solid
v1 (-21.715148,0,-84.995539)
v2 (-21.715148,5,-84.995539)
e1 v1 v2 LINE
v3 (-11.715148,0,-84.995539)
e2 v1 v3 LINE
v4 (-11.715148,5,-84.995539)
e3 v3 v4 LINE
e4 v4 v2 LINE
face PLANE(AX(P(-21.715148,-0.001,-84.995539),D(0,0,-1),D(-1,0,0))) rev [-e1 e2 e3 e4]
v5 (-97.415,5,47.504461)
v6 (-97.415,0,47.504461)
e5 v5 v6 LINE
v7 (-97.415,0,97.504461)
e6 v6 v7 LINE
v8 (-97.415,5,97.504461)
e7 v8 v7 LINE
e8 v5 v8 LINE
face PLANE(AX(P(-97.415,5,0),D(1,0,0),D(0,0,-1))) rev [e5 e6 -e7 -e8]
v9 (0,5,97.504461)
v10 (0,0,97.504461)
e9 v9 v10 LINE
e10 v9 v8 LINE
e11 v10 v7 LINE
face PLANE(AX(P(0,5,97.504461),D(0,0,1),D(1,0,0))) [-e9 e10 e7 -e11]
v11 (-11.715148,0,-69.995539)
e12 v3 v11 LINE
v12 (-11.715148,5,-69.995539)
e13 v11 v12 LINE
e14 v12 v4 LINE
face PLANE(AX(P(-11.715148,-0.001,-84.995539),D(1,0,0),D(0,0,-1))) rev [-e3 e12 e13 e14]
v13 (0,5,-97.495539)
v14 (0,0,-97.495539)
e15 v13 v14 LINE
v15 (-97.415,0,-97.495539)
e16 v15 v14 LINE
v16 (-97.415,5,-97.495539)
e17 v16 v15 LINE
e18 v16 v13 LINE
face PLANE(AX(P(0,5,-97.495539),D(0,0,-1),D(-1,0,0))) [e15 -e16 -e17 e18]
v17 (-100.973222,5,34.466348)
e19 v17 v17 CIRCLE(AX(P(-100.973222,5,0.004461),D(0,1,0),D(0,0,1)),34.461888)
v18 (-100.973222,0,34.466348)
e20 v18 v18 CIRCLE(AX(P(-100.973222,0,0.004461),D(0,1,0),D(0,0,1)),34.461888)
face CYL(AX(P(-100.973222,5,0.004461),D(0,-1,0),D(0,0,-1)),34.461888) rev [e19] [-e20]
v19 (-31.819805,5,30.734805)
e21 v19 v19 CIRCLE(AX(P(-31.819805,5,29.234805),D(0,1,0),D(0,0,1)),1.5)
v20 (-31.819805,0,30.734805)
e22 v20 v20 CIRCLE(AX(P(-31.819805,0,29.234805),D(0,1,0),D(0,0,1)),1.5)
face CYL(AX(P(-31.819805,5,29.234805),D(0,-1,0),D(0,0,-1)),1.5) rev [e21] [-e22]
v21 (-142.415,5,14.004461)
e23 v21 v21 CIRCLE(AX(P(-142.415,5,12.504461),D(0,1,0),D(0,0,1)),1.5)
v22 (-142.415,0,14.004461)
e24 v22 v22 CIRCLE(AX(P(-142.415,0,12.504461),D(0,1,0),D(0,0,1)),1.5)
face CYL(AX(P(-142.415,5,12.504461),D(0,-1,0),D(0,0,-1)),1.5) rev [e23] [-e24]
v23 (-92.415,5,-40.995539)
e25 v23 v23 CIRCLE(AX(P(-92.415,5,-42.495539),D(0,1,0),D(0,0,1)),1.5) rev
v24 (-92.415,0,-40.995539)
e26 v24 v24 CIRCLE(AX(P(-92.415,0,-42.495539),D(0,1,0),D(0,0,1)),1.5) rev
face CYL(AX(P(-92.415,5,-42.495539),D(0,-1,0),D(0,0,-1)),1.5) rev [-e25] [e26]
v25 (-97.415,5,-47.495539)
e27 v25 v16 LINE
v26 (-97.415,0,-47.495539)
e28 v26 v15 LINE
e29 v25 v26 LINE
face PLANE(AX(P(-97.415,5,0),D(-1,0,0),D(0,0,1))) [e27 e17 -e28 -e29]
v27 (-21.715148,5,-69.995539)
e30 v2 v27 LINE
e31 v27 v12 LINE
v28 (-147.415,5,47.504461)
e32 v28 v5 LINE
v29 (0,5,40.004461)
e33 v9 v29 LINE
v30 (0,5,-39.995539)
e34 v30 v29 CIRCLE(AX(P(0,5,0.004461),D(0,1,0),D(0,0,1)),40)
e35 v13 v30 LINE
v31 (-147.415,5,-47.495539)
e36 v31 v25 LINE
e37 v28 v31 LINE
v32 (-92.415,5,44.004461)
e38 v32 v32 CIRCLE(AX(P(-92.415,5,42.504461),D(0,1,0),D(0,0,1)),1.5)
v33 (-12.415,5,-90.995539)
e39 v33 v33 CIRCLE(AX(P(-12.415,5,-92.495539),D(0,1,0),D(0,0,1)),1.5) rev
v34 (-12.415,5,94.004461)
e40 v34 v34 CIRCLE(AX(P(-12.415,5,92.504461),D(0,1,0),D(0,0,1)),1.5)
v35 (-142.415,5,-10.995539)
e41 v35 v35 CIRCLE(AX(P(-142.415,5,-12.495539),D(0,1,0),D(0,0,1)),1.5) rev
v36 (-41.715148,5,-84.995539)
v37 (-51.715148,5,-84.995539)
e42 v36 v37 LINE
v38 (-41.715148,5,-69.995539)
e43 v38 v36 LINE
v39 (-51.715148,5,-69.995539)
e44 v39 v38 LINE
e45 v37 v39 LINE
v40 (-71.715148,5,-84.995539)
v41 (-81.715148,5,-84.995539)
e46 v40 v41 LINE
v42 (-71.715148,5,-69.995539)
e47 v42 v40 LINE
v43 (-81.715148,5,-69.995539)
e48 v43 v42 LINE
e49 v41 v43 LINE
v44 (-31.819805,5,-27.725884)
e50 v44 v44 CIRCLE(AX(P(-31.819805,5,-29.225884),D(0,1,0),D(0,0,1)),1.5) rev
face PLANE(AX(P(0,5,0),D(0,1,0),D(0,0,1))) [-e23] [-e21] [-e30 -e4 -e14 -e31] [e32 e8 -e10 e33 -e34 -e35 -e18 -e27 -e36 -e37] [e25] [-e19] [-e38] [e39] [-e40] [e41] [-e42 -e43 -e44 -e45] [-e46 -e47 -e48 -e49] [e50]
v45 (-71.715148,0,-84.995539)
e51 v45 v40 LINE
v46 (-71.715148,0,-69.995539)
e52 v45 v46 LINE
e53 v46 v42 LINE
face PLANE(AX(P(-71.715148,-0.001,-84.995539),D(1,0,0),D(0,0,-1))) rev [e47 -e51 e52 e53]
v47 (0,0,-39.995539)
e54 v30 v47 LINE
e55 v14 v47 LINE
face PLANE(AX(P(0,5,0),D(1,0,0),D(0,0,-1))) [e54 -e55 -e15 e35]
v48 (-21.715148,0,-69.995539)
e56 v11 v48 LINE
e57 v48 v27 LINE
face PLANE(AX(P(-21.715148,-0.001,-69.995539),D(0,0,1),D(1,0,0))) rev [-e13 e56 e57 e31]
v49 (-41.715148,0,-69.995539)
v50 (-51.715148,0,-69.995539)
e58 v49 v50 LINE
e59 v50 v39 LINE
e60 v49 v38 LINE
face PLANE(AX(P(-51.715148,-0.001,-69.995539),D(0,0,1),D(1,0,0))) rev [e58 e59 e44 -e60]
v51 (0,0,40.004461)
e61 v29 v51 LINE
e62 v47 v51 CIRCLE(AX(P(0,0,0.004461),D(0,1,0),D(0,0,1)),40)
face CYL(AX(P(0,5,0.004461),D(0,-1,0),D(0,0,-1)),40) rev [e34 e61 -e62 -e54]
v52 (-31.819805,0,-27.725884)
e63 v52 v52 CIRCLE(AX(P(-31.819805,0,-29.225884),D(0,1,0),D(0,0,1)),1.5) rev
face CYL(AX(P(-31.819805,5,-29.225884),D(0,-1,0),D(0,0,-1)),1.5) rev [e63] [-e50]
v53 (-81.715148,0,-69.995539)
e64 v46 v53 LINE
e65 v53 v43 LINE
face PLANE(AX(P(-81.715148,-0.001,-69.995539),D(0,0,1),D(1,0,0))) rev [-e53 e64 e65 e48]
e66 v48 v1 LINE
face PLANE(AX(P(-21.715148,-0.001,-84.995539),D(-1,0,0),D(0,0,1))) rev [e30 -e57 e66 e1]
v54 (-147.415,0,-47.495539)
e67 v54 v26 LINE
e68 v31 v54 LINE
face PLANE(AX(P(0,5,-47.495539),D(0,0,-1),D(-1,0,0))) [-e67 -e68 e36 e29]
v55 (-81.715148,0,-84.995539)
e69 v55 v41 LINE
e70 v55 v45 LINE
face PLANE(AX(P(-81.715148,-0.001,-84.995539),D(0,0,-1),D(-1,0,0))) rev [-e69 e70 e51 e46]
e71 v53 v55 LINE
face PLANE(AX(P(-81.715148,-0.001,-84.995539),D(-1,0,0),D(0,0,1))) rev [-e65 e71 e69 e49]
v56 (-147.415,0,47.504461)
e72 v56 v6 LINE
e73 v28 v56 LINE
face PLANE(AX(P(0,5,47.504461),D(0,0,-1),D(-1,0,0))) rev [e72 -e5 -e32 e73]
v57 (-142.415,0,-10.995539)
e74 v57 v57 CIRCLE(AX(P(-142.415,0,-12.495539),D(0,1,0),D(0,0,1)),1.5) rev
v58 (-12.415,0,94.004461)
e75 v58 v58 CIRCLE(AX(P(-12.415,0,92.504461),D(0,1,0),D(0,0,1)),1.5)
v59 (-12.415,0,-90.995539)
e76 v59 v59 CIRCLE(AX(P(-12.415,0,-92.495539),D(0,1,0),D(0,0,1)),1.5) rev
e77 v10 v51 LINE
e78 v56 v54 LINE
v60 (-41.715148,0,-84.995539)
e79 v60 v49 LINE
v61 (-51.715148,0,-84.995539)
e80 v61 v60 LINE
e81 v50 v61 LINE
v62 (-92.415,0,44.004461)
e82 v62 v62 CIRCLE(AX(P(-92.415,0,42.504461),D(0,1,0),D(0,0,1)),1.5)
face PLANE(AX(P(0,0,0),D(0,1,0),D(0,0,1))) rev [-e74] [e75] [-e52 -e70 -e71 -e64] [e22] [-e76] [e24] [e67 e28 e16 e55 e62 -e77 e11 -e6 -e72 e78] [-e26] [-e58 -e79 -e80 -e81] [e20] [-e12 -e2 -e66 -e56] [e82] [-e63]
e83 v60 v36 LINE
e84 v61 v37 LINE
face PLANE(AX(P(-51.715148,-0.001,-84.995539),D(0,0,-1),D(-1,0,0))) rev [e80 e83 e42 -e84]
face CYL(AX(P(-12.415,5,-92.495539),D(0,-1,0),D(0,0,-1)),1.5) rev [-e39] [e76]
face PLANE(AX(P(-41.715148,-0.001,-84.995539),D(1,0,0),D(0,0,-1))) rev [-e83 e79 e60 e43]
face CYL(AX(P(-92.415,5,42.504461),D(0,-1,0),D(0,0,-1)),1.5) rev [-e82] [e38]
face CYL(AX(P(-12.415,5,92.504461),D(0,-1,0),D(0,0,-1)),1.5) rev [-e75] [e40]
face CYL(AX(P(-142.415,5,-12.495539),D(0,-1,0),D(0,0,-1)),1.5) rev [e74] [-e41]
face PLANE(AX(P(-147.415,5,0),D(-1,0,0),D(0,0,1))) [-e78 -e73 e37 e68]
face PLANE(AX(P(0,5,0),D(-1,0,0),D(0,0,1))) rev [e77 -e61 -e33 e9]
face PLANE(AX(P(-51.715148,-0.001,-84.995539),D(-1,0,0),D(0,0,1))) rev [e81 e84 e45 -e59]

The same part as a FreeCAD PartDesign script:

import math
import FreeCAD as App
import Part
import Sketcher
from FreeCAD import Vector
Q = App.Units.Quantity

doc = App.newDocument("Part")
body = doc.addObject("PartDesign::Body", "Body")

sketch1 = body.newObject("Sketcher::SketchObject", "Sketch")
sketch1.AttachmentSupport = (doc.getObject("XZ_Plane"), [""])
sketch1.MapMode = "FlatFace"
sketch1.addGeometry([
    Part.LineSegment(Vector(-97.4, 97.5, 0), Vector(0, 97.5, 0)),
    Part.LineSegment(Vector(0, 97.5, 0), Vector(0, 40, 0)),
    Part.ArcOfCircle(Part.Circle(Vector(0, 0, 0), Vector(0, 0, 1), 40), math.radians(90), math.radians(270)),
    Part.LineSegment(Vector(0, -40, 0), Vector(0, -97.5, 0)),
    Part.LineSegment(Vector(0, -97.5, 0), Vector(-97.4, -97.5, 0)),
    Part.LineSegment(Vector(-97.4, -97.5, 0), Vector(-97.4, -47.5, 0)),
    Part.LineSegment(Vector(-97.4, -47.5, 0), Vector(-147.4, -47.5, 0)),
    Part.LineSegment(Vector(-147.4, -47.5, 0), Vector(-147.4, 47.5, 0)),
    Part.LineSegment(Vector(-147.4, 47.5, 0), Vector(-97.4, 47.5, 0)),
    Part.LineSegment(Vector(-97.4, 47.5, 0), Vector(-97.4, 97.5, 0)),
    Part.Circle(Vector(-142.4, 12.5, 0), Vector(0, 0, 1), 1.5),
    Part.Circle(Vector(-92.4, 42.5, 0), Vector(0, 0, 1), 1.5),
    Part.Circle(Vector(-12.4, 92.5, 0), Vector(0, 0, 1), 1.5),
    Part.Circle(Vector(-31.8, 29.2, 0), Vector(0, 0, 1), 1.5),
    Part.Circle(Vector(-142.4, -12.5, 0), Vector(0, 0, 1), 1.5),
    Part.Circle(Vector(-101, 0, 0), Vector(0, 0, 1), 34.5),
    Part.Circle(Vector(-92.4, -42.5, 0), Vector(0, 0, 1), 1.5),
    Part.Circle(Vector(-31.8, -29.2, 0), Vector(0, 0, 1), 1.5),
    Part.Circle(Vector(-12.4, -92.5, 0), Vector(0, 0, 1), 1.5),
], False)
sketch1.addConstraint([
    Sketcher.Constraint("Coincident", 0, 2, 1, 1),
    Sketcher.Constraint("Coincident", 1, 2, 2, 1),
    Sketcher.Constraint("Coincident", 2, 2, 3, 1),
    Sketcher.Constraint("Coincident", 3, 2, 4, 1),
    Sketcher.Constraint("Coincident", 4, 2, 5, 1),
    Sketcher.Constraint("Coincident", 5, 2, 6, 1),
    Sketcher.Constraint("Coincident", 6, 2, 7, 1),
    Sketcher.Constraint("Coincident", 7, 2, 8, 1),
    Sketcher.Constraint("Coincident", 8, 2, 9, 1),
    Sketcher.Constraint("Coincident", 9, 2, 0, 1),
    Sketcher.Constraint("Horizontal", 0),
    Sketcher.Constraint("Vertical", 1),
    Sketcher.Constraint("Vertical", 3),
    Sketcher.Constraint("Horizontal", 4),
    Sketcher.Constraint("Vertical", 5),
    Sketcher.Constraint("Horizontal", 6),
    Sketcher.Constraint("Vertical", 7),
    Sketcher.Constraint("Horizontal", 8),
    Sketcher.Constraint("Vertical", 9),
    Sketcher.Constraint("Equal", 10, 11),
    Sketcher.Constraint("Equal", 11, 12),
    Sketcher.Constraint("Equal", 12, 13),
    Sketcher.Constraint("Equal", 13, 14),
    Sketcher.Constraint("Equal", 14, 16),
    Sketcher.Constraint("Equal", 16, 17),
    Sketcher.Constraint("Equal", 17, 18),
    Sketcher.Constraint("PointOnObject", 2, 3, -2),
    Sketcher.Constraint("PointOnObject", 0, 2, -2),
    Sketcher.Constraint("PointOnObject", 2, 2, -2),
    Sketcher.Constraint("Horizontal", 2, 3, 15, 3),
    Sketcher.Constraint("Vertical", 10, 3, 14, 3),
    Sketcher.Constraint("Vertical", 11, 3, 16, 3),
    Sketcher.Constraint("Vertical", 13, 3, 17, 3),
    Sketcher.Constraint("Vertical", 12, 3, 18, 3),
    Sketcher.Constraint("Vertical", 5, 2, 8, 2),
    Sketcher.Constraint("Equal", 1, 3),
    Sketcher.Constraint("Equal", 8, 5),
    Sketcher.Constraint("Equal", 5, 9),
    Sketcher.Constraint("Diameter", 10, Q("3 mm")),
    Sketcher.Constraint("Radius", 2, Q("40 mm")),
    Sketcher.Constraint("DistanceX", 6, 2, 6, 1, Q("50 mm")),
    Sketcher.Constraint("DistanceY", 7, 1, 7, 2, Q("95 mm")),
    Sketcher.Constraint("DistanceX", 10, 3, 11, 3, Q("50 mm")),
    Sketcher.Constraint("DistanceY", 10, 3, 11, 3, Q("30 mm")),
    Sketcher.Constraint("DistanceX", 11, 3, 12, 3, Q("80 mm")),
    Sketcher.Constraint("DistanceY", 11, 3, 12, 3, Q("50 mm")),
    Sketcher.Constraint("DistanceY", 14, 3, 10, 3, Q("25 mm")),
    Sketcher.Constraint("DistanceY", 16, 3, 14, 3, Q("30 mm")),
    Sketcher.Constraint("DistanceY", 18, 3, 16, 3, Q("50 mm")),
    Sketcher.Constraint("DistanceY", 12, 3, 0, 2, Q("5 mm")),
    Sketcher.Constraint("DistanceX", 4, 2, 16, 3, Q("5 mm")),
    Sketcher.Constraint("DistanceX", 0, 1, 0, 2, Q("97.415 mm")),
    Sketcher.Constraint("Diameter", 15, Q("68.923775 mm")),
    Sketcher.Constraint("DistanceY", -1, 1, 2, 3, Q("0.004461 mm")),
    Sketcher.Constraint("DistanceX", 15, 3, -1, 1, Q("100.973222 mm")),
    Sketcher.Constraint("DistanceY", 17, 3, 13, 3, Q("58.460689 mm")),
    Sketcher.Constraint("DistanceX", 13, 3, -1, 1, Q("31.819805 mm")),
    Sketcher.Constraint("DistanceY", -1, 1, 13, 3, Q("29.234805 mm")),
])
pad1 = body.newObject("PartDesign::Pad", "Pad")
pad1.Profile = sketch1
pad1.Length = 5
pad1.Reversed = True

sketch2 = body.newObject("Sketcher::SketchObject", "Sketch001")
sketch2.AttachmentSupport = (doc.getObject("XZ_Plane"), [""])
sketch2.MapMode = "FlatFace"
sketch2.AttachmentOffset = App.Placement(Vector(0, 0, -5), App.Rotation())
sketch2.addGeometry([
    Part.LineSegment(Vector(-82, -85, 0), Vector(-82, -70, 0)),
    Part.LineSegment(Vector(-82, -70, 0), Vector(-72, -70, 0)),
    Part.LineSegment(Vector(-72, -70, 0), Vector(-72, -85, 0)),
    Part.LineSegment(Vector(-72, -85, 0), Vector(-82, -85, 0)),
], False)
sketch2.addConstraint([
    Sketcher.Constraint("Coincident", 0, 2, 1, 1),
    Sketcher.Constraint("Coincident", 1, 2, 2, 1),
    Sketcher.Constraint("Coincident", 2, 2, 3, 1),
    Sketcher.Constraint("Coincident", 3, 2, 0, 1),
    Sketcher.Constraint("Vertical", 0),
    Sketcher.Constraint("Horizontal", 1),
    Sketcher.Constraint("Vertical", 2),
    Sketcher.Constraint("Horizontal", 3),
    Sketcher.Constraint("DistanceX", 1, 1, 1, 2, Q("10 mm")),
    Sketcher.Constraint("DistanceY", 0, 1, 0, 2, Q("15 mm")),
    Sketcher.Constraint("DistanceY", 0, 2, -1, 1, Q("69.995539 mm")),
    Sketcher.Constraint("DistanceX", 0, 2, -1, 1, Q("81.715148 mm")),
])
pocket1 = body.newObject("PartDesign::Pocket", "Pocket")
pocket1.Profile = sketch2
pocket1.Type = "UpToFirst"
pocket1.Reversed = True

sketch3 = body.newObject("Sketcher::SketchObject", "Sketch002")
sketch3.AttachmentSupport = (doc.getObject("XZ_Plane"), [""])
sketch3.MapMode = "FlatFace"
sketch3.AttachmentOffset = App.Placement(Vector(0, 0, -5), App.Rotation())
sketch3.addGeometry([
    Part.LineSegment(Vector(-52, -85, 0), Vector(-52, -70, 0)),
    Part.LineSegment(Vector(-52, -70, 0), Vector(-42, -70, 0)),
    Part.LineSegment(Vector(-42, -70, 0), Vector(-42, -85, 0)),
    Part.LineSegment(Vector(-42, -85, 0), Vector(-52, -85, 0)),
], False)
sketch3.addConstraint([
    Sketcher.Constraint("Coincident", 0, 2, 1, 1),
    Sketcher.Constraint("Coincident", 1, 2, 2, 1),
    Sketcher.Constraint("Coincident", 2, 2, 3, 1),
    Sketcher.Constraint("Coincident", 3, 2, 0, 1),
    Sketcher.Constraint("Vertical", 0),
    Sketcher.Constraint("Horizontal", 1),
    Sketcher.Constraint("Vertical", 2),
    Sketcher.Constraint("Horizontal", 3),
    Sketcher.Constraint("DistanceX", 1, 1, 1, 2, Q("10 mm")),
    Sketcher.Constraint("DistanceY", 0, 1, 0, 2, Q("15 mm")),
    Sketcher.Constraint("DistanceY", 0, 2, -1, 1, Q("69.995539 mm")),
    Sketcher.Constraint("DistanceX", 0, 2, -1, 1, Q("51.715148 mm")),
])
pocket2 = body.newObject("PartDesign::Pocket", "Pocket001")
pocket2.Profile = sketch3
pocket2.Type = "UpToFirst"
pocket2.Reversed = True

sketch4 = body.newObject("Sketcher::SketchObject", "Sketch003")
sketch4.AttachmentSupport = (doc.getObject("XZ_Plane"), [""])
sketch4.MapMode = "FlatFace"
sketch4.AttachmentOffset = App.Placement(Vector(0, 0, -5), App.Rotation())
sketch4.addGeometry([
    Part.LineSegment(Vector(-22, -85, 0), Vector(-22, -70, 0)),
    Part.LineSegment(Vector(-22, -70, 0), Vector(-12, -70, 0)),
    Part.LineSegment(Vector(-12, -70, 0), Vector(-12, -85, 0)),
    Part.LineSegment(Vector(-12, -85, 0), Vector(-22, -85, 0)),
], False)
sketch4.addConstraint([
    Sketcher.Constraint("Coincident", 0, 2, 1, 1),
    Sketcher.Constraint("Coincident", 1, 2, 2, 1),
    Sketcher.Constraint("Coincident", 2, 2, 3, 1),
    Sketcher.Constraint("Coincident", 3, 2, 0, 1),
    Sketcher.Constraint("Vertical", 0),
    Sketcher.Constraint("Horizontal", 1),
    Sketcher.Constraint("Vertical", 2),
    Sketcher.Constraint("Horizontal", 3),
    Sketcher.Constraint("DistanceX", 1, 1, 1, 2, Q("10 mm")),
    Sketcher.Constraint("DistanceY", 0, 1, 0, 2, Q("15 mm")),
    Sketcher.Constraint("DistanceY", 0, 2, -1, 1, Q("69.995539 mm")),
    Sketcher.Constraint("DistanceX", 0, 2, -1, 1, Q("21.715148 mm")),
])
pocket3 = body.newObject("PartDesign::Pocket", "Pocket002")
pocket3.Profile = sketch4
pocket3.Type = "UpToFirst"
pocket3.Reversed = True

doc.recompute()
